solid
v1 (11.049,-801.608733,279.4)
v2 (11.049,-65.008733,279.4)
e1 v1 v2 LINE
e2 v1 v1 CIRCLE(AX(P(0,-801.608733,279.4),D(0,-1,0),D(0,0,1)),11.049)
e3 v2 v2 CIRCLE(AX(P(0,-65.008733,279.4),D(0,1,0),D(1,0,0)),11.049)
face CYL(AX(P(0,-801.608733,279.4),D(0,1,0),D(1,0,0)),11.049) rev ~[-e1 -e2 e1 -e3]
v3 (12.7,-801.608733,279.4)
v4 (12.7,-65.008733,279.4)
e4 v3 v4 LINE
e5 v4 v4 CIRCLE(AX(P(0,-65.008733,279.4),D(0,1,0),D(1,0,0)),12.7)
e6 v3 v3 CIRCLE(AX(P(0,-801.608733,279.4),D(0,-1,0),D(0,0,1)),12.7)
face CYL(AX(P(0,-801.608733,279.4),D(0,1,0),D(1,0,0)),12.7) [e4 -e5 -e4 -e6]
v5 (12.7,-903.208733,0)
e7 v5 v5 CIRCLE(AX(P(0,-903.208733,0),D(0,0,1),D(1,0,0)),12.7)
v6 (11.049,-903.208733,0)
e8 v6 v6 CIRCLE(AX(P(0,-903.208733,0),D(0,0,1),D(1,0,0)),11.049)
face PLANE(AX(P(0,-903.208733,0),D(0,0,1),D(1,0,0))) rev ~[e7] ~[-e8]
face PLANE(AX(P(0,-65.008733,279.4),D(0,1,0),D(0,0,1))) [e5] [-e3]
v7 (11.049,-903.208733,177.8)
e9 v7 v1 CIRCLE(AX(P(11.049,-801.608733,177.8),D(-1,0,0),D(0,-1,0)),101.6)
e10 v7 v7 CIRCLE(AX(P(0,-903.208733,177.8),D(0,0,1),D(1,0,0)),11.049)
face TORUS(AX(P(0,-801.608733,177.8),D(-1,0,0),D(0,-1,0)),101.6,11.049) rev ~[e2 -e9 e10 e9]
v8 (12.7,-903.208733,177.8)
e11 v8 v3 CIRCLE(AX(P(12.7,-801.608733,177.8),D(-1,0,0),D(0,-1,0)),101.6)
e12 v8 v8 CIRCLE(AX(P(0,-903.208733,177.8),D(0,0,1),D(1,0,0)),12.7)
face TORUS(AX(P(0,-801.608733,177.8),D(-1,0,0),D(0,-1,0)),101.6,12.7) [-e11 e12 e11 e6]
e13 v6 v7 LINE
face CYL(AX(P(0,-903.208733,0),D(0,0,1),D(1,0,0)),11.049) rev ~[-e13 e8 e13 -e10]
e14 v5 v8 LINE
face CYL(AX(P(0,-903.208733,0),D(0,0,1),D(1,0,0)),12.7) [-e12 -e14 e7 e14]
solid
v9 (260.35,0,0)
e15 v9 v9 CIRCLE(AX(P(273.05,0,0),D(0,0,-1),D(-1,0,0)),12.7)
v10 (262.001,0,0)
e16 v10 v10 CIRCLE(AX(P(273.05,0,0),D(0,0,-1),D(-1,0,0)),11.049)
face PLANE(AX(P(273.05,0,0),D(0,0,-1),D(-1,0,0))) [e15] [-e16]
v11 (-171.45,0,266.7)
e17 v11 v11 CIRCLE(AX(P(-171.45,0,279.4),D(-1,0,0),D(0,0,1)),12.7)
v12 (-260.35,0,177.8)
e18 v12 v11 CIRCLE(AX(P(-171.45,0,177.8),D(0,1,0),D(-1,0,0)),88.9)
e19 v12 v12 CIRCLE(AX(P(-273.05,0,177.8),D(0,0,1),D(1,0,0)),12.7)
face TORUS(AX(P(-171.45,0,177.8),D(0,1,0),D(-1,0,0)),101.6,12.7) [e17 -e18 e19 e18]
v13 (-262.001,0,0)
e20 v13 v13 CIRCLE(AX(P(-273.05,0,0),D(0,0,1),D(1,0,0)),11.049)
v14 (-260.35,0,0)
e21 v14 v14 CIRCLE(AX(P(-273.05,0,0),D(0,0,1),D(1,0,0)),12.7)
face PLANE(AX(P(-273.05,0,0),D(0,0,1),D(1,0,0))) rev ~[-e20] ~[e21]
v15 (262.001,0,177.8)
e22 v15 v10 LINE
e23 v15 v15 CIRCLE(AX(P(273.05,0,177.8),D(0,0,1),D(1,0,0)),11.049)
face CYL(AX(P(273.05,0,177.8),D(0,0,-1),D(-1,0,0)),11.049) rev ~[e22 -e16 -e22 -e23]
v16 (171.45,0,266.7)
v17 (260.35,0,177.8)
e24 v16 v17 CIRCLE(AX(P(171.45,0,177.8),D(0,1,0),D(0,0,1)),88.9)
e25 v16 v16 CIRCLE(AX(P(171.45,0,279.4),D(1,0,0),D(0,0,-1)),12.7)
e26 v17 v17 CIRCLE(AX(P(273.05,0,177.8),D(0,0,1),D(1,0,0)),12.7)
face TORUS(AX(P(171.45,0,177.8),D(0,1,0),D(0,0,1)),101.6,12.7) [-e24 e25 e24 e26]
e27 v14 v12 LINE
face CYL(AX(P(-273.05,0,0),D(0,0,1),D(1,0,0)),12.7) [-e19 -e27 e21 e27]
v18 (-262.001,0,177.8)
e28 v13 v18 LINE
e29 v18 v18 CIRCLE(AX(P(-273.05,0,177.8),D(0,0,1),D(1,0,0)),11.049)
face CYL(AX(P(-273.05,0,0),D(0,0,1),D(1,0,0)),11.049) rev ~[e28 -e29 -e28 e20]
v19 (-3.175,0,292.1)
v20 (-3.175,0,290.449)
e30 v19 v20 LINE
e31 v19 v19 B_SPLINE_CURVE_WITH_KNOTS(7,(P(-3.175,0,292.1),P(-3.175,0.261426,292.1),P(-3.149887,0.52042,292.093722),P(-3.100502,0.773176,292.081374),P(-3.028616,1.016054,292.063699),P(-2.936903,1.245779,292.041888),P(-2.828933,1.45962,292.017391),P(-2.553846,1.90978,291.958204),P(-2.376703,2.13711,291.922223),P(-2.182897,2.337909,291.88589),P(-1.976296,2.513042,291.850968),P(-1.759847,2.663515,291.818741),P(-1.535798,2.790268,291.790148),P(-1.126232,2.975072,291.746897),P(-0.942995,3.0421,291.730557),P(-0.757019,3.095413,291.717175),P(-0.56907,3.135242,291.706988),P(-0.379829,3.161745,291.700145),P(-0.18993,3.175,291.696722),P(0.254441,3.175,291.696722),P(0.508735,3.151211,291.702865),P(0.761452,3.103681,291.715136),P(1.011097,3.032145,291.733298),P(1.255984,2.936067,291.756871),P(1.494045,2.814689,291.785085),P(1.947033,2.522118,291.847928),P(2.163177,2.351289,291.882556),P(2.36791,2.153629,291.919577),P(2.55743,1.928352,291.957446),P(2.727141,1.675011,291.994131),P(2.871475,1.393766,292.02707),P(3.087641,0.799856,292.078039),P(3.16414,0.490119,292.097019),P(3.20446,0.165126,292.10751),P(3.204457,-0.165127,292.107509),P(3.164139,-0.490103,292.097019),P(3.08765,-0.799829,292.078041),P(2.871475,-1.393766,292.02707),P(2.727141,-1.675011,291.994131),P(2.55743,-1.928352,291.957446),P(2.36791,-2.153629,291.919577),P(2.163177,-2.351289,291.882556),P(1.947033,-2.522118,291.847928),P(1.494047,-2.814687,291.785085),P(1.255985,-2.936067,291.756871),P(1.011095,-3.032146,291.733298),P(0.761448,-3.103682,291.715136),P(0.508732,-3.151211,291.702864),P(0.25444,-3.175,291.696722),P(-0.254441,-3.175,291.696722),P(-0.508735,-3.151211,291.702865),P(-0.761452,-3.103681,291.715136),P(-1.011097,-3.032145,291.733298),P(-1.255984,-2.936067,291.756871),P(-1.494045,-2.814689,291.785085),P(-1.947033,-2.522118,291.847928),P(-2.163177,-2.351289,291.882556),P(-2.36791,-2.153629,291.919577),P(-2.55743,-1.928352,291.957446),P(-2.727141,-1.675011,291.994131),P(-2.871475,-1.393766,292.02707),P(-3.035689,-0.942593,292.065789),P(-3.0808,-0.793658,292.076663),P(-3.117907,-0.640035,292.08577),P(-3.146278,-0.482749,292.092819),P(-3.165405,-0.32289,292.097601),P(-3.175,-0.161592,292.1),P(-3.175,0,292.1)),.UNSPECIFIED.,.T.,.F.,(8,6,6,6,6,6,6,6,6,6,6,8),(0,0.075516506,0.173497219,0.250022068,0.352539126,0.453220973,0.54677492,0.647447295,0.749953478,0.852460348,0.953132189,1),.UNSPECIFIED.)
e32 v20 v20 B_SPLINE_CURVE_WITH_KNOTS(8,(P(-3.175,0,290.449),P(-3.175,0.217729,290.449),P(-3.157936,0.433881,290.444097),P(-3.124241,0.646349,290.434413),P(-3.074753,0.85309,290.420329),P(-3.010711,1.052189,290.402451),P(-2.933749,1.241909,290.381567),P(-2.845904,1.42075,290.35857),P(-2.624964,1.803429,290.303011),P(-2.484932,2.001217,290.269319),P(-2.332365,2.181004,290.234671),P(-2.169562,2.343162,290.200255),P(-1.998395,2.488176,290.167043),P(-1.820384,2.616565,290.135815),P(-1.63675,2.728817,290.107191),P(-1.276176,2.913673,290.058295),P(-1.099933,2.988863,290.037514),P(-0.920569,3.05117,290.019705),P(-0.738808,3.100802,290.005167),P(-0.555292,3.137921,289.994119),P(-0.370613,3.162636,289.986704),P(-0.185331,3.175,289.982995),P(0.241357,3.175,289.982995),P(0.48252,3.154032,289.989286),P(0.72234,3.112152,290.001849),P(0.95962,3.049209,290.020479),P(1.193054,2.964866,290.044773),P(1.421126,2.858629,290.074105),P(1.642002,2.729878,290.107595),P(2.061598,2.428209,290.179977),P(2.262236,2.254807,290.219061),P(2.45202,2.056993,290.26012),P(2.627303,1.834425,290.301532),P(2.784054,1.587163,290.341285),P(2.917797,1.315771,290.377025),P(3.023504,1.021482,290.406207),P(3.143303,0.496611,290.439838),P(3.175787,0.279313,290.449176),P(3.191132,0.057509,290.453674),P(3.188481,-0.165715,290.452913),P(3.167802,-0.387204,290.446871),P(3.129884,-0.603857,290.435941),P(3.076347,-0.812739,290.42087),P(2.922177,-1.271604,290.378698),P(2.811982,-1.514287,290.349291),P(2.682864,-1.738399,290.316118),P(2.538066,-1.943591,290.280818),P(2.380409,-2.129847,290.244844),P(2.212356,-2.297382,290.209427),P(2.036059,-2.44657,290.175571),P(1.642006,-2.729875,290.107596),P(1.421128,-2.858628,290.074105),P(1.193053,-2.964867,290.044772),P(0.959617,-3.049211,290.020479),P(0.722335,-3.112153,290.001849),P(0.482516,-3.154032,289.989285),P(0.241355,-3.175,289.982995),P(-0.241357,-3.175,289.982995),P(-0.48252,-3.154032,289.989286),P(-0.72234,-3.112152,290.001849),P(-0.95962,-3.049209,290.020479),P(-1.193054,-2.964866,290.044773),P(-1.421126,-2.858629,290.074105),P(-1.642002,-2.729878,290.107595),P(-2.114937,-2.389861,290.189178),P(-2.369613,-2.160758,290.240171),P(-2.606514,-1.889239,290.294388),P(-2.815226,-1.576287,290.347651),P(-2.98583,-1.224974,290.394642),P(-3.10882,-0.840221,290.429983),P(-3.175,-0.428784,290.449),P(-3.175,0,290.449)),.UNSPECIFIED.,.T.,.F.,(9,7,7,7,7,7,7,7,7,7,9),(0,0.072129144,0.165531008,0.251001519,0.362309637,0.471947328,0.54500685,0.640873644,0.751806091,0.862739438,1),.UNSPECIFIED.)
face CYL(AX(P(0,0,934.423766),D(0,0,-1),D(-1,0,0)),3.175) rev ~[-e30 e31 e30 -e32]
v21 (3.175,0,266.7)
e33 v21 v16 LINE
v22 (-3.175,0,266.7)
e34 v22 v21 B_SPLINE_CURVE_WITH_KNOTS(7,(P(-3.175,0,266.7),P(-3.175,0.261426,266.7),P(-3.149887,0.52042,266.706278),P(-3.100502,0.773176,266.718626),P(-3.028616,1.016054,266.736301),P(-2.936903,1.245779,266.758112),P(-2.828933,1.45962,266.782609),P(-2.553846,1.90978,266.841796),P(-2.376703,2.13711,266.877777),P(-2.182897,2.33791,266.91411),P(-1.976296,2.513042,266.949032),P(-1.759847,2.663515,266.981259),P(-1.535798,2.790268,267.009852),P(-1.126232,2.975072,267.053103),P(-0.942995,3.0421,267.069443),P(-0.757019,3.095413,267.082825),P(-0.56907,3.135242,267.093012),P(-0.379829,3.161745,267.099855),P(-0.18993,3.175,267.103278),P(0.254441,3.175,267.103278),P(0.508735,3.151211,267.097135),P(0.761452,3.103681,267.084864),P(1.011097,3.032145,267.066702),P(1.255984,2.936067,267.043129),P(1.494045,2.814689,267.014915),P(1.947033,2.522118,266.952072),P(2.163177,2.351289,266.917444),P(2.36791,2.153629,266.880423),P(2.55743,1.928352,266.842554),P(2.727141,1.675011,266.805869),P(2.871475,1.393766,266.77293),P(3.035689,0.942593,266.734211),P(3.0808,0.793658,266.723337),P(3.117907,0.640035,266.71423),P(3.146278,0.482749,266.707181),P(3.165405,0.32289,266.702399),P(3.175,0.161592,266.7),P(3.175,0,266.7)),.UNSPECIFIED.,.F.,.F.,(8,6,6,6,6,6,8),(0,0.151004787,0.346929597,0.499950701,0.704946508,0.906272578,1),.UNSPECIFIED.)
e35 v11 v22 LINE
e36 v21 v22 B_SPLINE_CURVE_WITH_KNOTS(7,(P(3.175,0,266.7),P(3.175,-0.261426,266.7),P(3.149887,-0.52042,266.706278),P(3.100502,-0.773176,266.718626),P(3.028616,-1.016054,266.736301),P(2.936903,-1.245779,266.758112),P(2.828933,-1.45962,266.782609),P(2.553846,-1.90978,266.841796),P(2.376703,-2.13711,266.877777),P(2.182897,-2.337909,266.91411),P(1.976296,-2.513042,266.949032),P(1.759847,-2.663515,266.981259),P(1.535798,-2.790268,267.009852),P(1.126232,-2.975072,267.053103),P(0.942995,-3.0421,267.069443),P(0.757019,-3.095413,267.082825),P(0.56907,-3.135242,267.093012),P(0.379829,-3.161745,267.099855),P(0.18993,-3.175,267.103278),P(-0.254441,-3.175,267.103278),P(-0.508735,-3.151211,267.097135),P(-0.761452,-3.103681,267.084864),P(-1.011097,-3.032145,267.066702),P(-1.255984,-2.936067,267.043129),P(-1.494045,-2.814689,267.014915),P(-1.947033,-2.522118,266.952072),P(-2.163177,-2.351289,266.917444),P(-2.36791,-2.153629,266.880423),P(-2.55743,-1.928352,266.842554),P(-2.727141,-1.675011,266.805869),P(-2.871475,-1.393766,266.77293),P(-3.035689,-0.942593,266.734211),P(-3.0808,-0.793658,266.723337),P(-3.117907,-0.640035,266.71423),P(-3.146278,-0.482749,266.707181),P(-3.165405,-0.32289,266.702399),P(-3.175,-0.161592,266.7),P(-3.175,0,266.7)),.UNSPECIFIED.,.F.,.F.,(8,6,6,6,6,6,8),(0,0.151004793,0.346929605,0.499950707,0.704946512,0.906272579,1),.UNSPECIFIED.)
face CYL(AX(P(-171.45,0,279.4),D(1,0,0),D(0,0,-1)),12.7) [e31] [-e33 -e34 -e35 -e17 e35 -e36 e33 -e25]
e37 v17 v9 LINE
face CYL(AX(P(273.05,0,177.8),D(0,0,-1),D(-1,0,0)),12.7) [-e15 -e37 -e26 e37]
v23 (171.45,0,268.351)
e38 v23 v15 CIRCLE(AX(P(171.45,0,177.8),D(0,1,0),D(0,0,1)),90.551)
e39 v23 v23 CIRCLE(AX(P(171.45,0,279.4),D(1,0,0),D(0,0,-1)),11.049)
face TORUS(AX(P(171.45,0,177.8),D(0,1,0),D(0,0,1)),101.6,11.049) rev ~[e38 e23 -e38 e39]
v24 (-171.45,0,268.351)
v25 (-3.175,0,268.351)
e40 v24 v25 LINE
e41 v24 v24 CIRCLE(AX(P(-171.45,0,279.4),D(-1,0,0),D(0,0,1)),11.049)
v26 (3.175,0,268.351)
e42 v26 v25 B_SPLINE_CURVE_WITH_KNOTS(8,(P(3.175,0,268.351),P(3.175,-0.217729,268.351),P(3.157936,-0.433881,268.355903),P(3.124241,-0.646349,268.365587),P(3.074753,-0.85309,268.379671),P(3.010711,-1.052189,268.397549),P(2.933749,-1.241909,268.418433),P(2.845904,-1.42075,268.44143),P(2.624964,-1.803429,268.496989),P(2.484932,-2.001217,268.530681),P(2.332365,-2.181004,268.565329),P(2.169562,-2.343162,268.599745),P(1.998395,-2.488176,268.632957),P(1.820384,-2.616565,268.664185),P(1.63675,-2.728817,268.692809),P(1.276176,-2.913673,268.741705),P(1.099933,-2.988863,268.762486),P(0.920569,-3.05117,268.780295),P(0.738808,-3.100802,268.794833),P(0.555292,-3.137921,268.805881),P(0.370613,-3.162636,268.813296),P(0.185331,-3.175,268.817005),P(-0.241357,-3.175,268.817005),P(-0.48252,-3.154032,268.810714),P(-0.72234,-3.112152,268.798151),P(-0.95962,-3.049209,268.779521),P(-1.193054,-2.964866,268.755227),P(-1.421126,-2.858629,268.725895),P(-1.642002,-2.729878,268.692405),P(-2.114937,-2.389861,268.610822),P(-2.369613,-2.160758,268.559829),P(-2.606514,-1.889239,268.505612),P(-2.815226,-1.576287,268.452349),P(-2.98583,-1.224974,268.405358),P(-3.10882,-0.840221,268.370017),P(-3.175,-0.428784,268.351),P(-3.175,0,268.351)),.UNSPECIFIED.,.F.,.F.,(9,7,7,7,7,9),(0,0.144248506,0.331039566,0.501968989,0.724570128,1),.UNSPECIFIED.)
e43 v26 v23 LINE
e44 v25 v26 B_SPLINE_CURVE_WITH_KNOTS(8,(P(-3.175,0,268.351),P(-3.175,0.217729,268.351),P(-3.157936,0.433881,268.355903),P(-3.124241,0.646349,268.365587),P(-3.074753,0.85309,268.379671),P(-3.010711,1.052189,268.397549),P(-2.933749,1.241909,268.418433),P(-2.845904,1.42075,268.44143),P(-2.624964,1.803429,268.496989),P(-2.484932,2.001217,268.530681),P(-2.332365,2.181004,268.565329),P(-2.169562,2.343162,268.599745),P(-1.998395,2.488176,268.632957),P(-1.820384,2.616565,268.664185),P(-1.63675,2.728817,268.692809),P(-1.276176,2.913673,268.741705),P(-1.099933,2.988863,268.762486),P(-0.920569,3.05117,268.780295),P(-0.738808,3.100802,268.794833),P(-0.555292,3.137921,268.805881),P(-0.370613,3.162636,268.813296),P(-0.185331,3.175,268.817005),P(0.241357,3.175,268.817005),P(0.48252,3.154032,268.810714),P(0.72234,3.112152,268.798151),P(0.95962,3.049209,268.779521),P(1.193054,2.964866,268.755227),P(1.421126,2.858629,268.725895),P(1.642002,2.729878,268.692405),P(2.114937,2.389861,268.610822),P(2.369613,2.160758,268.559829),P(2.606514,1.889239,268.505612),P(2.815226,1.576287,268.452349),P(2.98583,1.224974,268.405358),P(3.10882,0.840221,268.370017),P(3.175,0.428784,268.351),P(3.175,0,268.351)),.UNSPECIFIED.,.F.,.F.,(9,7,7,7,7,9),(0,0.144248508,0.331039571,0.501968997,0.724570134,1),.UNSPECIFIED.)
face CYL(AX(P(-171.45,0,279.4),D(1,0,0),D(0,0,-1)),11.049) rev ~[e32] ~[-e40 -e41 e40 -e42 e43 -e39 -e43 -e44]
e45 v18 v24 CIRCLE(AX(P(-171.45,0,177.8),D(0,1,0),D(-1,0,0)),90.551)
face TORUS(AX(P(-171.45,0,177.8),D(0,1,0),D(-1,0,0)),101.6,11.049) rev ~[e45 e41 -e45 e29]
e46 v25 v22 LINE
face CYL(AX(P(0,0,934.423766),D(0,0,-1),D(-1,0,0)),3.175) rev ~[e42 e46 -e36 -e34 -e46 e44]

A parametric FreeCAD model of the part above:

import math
import FreeCAD as App
import Part
import Sketcher

V = App.Vector
Q = App.Units.Quantity

doc = App.newDocument("Part")
params = doc.addObject("Spreadsheet::Sheet", "Params")
for row, (alias, value) in enumerate([
    ("sketch1_diameter", "1 in"),
    ("sketch1_diameter2", "0.87 in"),
    ("sketch2_radius", "4 in"),
    ("sketch2_height", "7 in"),
    ("sketch2_width", "13.5 in"),
    ("sketch3_diameter", "0.25 in"),
    ("hole_diameter", "0.25 in"),
    ("sketch4_diameter", "1 in"),
    ("sketch4_diameter2", "0.87 in"),
    ("sketch5_radius", "4 in"),
    ("sketch5_width", "29 in"),
    ("sketch5_height", "7 in"),
], start=1):
    params.set(f"A{row}", alias)
    params.set(f"B{row}", "=" + value)
    params.setAlias(f"B{row}", alias)

body = doc.addObject("PartDesign::Body", "Body")

sketch1 = body.newObject("Sketcher::SketchObject", "Sketch")
sketch1.AttachmentSupport = (doc.getObject("XY_Plane"), [""])
sketch1.MapMode = "FlatFace"
sketch1.addGeometry(Part.Circle(V(-273, 0, 0), V(0, 0, 1), 13), False)
sketch1.addGeometry(Part.Circle(V(-273, 0, 0), V(0, 0, 1), 11), False)
sketch1.addConstraint(Sketcher.Constraint("Coincident", 1, 3, 0, 3))
sketch1.addConstraint(Sketcher.Constraint("PointOnObject", 0, 3, -1))
sketch1.addConstraint(Sketcher.Constraint("Diameter", 0, Q("1 in")))
sketch1.addConstraint(Sketcher.Constraint("Diameter", 1, Q("0.87 in")))
sketch1.addConstraint(Sketcher.Constraint("DistanceX", 0, 3, -1, 1, Q("10.75 in")))
sketch1.setExpression("Constraints[2]", "Params.sketch1_diameter")
sketch1.setExpression("Constraints[3]", "Params.sketch1_diameter2")

sketch2 = body.newObject("Sketcher::SketchObject", "Sketch001")
sketch2.AttachmentSupport = (doc.getObject("XZ_Plane"), [""])
sketch2.MapMode = "FlatFace"
sketch2.addGeometry(Part.LineSegment(V(-273, 0, 0), V(-273, 178, 0)), False)
sketch2.addGeometry(Part.ArcOfCircle(Part.Circle(V(-171, 178, 0), V(0, 0, 1), 102), math.radians(90), math.radians(180)), False)
sketch2.addGeometry(Part.LineSegment(V(-171, 279, 0), V(171, 279, 0)), False)
sketch2.addGeometry(Part.ArcOfCircle(Part.Circle(V(171, 178, 0), V(0, 0, 1), 102), math.radians(0), math.radians(90)), False)
sketch2.addGeometry(Part.LineSegment(V(273, 178, 0), V(273, 0, 0)), False)
sketch2.addConstraint(Sketcher.Constraint("Tangent", 0, 2, 1, 2))
sketch2.addConstraint(Sketcher.Constraint("Tangent", 1, 1, 2, 1))
sketch2.addConstraint(Sketcher.Constraint("Tangent", 2, 2, 3, 2))
sketch2.addConstraint(Sketcher.Constraint("Tangent", 3, 1, 4, 1))
sketch2.addConstraint(Sketcher.Constraint("Vertical", 0))
sketch2.addConstraint(Sketcher.Constraint("Horizontal", 2))
sketch2.addConstraint(Sketcher.Constraint("Vertical", 4))
sketch2.addConstraint(Sketcher.Constraint("Equal", 1, 3))
sketch2.addConstraint(Sketcher.Constraint("Symmetric", 0, 1, 4, 2, -1, 1))
sketch2.addConstraint(Sketcher.Constraint("PointOnObject", 0, 1, -1))
sketch2.addConstraint(Sketcher.Constraint("Radius", 1, Q("4 in")))
sketch2.addConstraint(Sketcher.Constraint("DistanceY", 0, 1, 0, 2, Q("7 in")))
sketch2.addConstraint(Sketcher.Constraint("DistanceX", 2, 1, 2, 2, Q("13.5 in")))
sketch2.setExpression("Constraints[10]", "Params.sketch2_radius")
sketch2.setExpression("Constraints[11]", "Params.sketch2_height")
sketch2.setExpression("Constraints[12]", "Params.sketch2_width")
doc.recompute()

additivepipe = body.newObject("PartDesign::AdditivePipe", "AdditivePipe")
additivepipe.Profile = sketch1
additivepipe.Spine = (sketch2, ["Edge1", "Edge2", "Edge3", "Edge4", "Edge5"])

sketch3 = body.newObject("Sketcher::SketchObject", "Sketch002")
sketch3.AttachmentSupport = (doc.getObject("XY_Plane"), [""])
sketch3.MapMode = "FlatFace"
sketch3.AttachmentOffset = App.Placement(V(0, 0, 11.5 * 25.4), App.Rotation())
sketch3.addGeometry(Part.Circle(V(0, 0, 0), V(0, 0, 1), 3.2), False)
sketch3.addConstraint(Sketcher.Constraint("Coincident", 0, 3, -1, 1))
sketch3.addConstraint(Sketcher.Constraint("Diameter", 0, Q("0.25 in")))
sketch3.setExpression("Constraints[1]", "Params.sketch3_diameter")
doc.recompute()
hole = body.newObject("PartDesign::Hole", "Hole")
hole.Profile = sketch3
hole.ThreadType = "None"
hole.setExpression("Diameter", "Params.hole_diameter")
hole.DepthType = "ThroughAll"
body2 = doc.addObject("PartDesign::Body", "Body001")

sketch4 = body2.newObject("Sketcher::SketchObject", "Sketch003")
sketch4.AttachmentSupport = (doc.getObject("XY_Plane001"), [""])
sketch4.MapMode = "FlatFace"
sketch4.addGeometry(Part.Circle(V(0, -903, 0), V(0, 0, 1), 13), False)
sketch4.addGeometry(Part.Circle(V(0, -903, 0), V(0, 0, 1), 11), False)
sketch4.addConstraint(Sketcher.Constraint("Coincident", 1, 3, 0, 3))
sketch4.addConstraint(Sketcher.Constraint("PointOnObject", 0, 3, -2))
sketch4.addConstraint(Sketcher.Constraint("Diameter", 0, Q("1 in")))
sketch4.addConstraint(Sketcher.Constraint("Diameter", 1, Q("0.87 in")))
sketch4.addConstraint(Sketcher.Constraint("DistanceY", 0, 3, -1, 1, Q("903.208733 mm")))
sketch4.setExpression("Constraints[2]", "Params.sketch4_diameter")
sketch4.setExpression("Constraints[3]", "Params.sketch4_diameter2")

sketch5 = body2.newObject("Sketcher::SketchObject", "Sketch004")
sketch5.AttachmentSupport = (doc.getObject("YZ_Plane001"), [""])
sketch5.MapMode = "FlatFace"
sketch5.addGeometry(Part.LineSegment(V(-903, 0, 0), V(-903, 178, 0)), False)
sketch5.addGeometry(Part.ArcOfCircle(Part.Circle(V(-802, 178, 0), V(0, 0, 1), 102), math.radians(90), math.radians(180)), False)
sketch5.addGeometry(Part.LineSegment(V(-802, 279, 0), V(-65, 279, 0)), False)
sketch5.addConstraint(Sketcher.Constraint("Tangent", 0, 2, 1, 2))
sketch5.addConstraint(Sketcher.Constraint("Tangent", 1, 1, 2, 1))
sketch5.addConstraint(Sketcher.Constraint("Vertical", 0))
sketch5.addConstraint(Sketcher.Constraint("Horizontal", 2))
sketch5.addConstraint(Sketcher.Constraint("PointOnObject", 0, 1, -1))
sketch5.addConstraint(Sketcher.Constraint("Radius", 1, Q("4 in")))
sketch5.addConstraint(Sketcher.Constraint("DistanceX", 2, 1, 2, 2, Q("29 in")))
sketch5.addConstraint(Sketcher.Constraint("DistanceY", 0, 1, 0, 2, Q("7 in")))
sketch5.addConstraint(Sketcher.Constraint("DistanceX", 1, 3, -1, 1, Q("801.608733 mm")))
sketch5.setExpression("Constraints[5]", "Params.sketch5_radius")
sketch5.setExpression("Constraints[6]", "Params.sketch5_width")
sketch5.setExpression("Constraints[7]", "Params.sketch5_height")
doc.recompute()

additivepipe2 = body2.newObject("PartDesign::AdditivePipe", "AdditivePipe001")
additivepipe2.Profile = sketch4
additivepipe2.Spine = (sketch5, ["Edge1", "Edge2", "Edge3"])

doc.recompute()
